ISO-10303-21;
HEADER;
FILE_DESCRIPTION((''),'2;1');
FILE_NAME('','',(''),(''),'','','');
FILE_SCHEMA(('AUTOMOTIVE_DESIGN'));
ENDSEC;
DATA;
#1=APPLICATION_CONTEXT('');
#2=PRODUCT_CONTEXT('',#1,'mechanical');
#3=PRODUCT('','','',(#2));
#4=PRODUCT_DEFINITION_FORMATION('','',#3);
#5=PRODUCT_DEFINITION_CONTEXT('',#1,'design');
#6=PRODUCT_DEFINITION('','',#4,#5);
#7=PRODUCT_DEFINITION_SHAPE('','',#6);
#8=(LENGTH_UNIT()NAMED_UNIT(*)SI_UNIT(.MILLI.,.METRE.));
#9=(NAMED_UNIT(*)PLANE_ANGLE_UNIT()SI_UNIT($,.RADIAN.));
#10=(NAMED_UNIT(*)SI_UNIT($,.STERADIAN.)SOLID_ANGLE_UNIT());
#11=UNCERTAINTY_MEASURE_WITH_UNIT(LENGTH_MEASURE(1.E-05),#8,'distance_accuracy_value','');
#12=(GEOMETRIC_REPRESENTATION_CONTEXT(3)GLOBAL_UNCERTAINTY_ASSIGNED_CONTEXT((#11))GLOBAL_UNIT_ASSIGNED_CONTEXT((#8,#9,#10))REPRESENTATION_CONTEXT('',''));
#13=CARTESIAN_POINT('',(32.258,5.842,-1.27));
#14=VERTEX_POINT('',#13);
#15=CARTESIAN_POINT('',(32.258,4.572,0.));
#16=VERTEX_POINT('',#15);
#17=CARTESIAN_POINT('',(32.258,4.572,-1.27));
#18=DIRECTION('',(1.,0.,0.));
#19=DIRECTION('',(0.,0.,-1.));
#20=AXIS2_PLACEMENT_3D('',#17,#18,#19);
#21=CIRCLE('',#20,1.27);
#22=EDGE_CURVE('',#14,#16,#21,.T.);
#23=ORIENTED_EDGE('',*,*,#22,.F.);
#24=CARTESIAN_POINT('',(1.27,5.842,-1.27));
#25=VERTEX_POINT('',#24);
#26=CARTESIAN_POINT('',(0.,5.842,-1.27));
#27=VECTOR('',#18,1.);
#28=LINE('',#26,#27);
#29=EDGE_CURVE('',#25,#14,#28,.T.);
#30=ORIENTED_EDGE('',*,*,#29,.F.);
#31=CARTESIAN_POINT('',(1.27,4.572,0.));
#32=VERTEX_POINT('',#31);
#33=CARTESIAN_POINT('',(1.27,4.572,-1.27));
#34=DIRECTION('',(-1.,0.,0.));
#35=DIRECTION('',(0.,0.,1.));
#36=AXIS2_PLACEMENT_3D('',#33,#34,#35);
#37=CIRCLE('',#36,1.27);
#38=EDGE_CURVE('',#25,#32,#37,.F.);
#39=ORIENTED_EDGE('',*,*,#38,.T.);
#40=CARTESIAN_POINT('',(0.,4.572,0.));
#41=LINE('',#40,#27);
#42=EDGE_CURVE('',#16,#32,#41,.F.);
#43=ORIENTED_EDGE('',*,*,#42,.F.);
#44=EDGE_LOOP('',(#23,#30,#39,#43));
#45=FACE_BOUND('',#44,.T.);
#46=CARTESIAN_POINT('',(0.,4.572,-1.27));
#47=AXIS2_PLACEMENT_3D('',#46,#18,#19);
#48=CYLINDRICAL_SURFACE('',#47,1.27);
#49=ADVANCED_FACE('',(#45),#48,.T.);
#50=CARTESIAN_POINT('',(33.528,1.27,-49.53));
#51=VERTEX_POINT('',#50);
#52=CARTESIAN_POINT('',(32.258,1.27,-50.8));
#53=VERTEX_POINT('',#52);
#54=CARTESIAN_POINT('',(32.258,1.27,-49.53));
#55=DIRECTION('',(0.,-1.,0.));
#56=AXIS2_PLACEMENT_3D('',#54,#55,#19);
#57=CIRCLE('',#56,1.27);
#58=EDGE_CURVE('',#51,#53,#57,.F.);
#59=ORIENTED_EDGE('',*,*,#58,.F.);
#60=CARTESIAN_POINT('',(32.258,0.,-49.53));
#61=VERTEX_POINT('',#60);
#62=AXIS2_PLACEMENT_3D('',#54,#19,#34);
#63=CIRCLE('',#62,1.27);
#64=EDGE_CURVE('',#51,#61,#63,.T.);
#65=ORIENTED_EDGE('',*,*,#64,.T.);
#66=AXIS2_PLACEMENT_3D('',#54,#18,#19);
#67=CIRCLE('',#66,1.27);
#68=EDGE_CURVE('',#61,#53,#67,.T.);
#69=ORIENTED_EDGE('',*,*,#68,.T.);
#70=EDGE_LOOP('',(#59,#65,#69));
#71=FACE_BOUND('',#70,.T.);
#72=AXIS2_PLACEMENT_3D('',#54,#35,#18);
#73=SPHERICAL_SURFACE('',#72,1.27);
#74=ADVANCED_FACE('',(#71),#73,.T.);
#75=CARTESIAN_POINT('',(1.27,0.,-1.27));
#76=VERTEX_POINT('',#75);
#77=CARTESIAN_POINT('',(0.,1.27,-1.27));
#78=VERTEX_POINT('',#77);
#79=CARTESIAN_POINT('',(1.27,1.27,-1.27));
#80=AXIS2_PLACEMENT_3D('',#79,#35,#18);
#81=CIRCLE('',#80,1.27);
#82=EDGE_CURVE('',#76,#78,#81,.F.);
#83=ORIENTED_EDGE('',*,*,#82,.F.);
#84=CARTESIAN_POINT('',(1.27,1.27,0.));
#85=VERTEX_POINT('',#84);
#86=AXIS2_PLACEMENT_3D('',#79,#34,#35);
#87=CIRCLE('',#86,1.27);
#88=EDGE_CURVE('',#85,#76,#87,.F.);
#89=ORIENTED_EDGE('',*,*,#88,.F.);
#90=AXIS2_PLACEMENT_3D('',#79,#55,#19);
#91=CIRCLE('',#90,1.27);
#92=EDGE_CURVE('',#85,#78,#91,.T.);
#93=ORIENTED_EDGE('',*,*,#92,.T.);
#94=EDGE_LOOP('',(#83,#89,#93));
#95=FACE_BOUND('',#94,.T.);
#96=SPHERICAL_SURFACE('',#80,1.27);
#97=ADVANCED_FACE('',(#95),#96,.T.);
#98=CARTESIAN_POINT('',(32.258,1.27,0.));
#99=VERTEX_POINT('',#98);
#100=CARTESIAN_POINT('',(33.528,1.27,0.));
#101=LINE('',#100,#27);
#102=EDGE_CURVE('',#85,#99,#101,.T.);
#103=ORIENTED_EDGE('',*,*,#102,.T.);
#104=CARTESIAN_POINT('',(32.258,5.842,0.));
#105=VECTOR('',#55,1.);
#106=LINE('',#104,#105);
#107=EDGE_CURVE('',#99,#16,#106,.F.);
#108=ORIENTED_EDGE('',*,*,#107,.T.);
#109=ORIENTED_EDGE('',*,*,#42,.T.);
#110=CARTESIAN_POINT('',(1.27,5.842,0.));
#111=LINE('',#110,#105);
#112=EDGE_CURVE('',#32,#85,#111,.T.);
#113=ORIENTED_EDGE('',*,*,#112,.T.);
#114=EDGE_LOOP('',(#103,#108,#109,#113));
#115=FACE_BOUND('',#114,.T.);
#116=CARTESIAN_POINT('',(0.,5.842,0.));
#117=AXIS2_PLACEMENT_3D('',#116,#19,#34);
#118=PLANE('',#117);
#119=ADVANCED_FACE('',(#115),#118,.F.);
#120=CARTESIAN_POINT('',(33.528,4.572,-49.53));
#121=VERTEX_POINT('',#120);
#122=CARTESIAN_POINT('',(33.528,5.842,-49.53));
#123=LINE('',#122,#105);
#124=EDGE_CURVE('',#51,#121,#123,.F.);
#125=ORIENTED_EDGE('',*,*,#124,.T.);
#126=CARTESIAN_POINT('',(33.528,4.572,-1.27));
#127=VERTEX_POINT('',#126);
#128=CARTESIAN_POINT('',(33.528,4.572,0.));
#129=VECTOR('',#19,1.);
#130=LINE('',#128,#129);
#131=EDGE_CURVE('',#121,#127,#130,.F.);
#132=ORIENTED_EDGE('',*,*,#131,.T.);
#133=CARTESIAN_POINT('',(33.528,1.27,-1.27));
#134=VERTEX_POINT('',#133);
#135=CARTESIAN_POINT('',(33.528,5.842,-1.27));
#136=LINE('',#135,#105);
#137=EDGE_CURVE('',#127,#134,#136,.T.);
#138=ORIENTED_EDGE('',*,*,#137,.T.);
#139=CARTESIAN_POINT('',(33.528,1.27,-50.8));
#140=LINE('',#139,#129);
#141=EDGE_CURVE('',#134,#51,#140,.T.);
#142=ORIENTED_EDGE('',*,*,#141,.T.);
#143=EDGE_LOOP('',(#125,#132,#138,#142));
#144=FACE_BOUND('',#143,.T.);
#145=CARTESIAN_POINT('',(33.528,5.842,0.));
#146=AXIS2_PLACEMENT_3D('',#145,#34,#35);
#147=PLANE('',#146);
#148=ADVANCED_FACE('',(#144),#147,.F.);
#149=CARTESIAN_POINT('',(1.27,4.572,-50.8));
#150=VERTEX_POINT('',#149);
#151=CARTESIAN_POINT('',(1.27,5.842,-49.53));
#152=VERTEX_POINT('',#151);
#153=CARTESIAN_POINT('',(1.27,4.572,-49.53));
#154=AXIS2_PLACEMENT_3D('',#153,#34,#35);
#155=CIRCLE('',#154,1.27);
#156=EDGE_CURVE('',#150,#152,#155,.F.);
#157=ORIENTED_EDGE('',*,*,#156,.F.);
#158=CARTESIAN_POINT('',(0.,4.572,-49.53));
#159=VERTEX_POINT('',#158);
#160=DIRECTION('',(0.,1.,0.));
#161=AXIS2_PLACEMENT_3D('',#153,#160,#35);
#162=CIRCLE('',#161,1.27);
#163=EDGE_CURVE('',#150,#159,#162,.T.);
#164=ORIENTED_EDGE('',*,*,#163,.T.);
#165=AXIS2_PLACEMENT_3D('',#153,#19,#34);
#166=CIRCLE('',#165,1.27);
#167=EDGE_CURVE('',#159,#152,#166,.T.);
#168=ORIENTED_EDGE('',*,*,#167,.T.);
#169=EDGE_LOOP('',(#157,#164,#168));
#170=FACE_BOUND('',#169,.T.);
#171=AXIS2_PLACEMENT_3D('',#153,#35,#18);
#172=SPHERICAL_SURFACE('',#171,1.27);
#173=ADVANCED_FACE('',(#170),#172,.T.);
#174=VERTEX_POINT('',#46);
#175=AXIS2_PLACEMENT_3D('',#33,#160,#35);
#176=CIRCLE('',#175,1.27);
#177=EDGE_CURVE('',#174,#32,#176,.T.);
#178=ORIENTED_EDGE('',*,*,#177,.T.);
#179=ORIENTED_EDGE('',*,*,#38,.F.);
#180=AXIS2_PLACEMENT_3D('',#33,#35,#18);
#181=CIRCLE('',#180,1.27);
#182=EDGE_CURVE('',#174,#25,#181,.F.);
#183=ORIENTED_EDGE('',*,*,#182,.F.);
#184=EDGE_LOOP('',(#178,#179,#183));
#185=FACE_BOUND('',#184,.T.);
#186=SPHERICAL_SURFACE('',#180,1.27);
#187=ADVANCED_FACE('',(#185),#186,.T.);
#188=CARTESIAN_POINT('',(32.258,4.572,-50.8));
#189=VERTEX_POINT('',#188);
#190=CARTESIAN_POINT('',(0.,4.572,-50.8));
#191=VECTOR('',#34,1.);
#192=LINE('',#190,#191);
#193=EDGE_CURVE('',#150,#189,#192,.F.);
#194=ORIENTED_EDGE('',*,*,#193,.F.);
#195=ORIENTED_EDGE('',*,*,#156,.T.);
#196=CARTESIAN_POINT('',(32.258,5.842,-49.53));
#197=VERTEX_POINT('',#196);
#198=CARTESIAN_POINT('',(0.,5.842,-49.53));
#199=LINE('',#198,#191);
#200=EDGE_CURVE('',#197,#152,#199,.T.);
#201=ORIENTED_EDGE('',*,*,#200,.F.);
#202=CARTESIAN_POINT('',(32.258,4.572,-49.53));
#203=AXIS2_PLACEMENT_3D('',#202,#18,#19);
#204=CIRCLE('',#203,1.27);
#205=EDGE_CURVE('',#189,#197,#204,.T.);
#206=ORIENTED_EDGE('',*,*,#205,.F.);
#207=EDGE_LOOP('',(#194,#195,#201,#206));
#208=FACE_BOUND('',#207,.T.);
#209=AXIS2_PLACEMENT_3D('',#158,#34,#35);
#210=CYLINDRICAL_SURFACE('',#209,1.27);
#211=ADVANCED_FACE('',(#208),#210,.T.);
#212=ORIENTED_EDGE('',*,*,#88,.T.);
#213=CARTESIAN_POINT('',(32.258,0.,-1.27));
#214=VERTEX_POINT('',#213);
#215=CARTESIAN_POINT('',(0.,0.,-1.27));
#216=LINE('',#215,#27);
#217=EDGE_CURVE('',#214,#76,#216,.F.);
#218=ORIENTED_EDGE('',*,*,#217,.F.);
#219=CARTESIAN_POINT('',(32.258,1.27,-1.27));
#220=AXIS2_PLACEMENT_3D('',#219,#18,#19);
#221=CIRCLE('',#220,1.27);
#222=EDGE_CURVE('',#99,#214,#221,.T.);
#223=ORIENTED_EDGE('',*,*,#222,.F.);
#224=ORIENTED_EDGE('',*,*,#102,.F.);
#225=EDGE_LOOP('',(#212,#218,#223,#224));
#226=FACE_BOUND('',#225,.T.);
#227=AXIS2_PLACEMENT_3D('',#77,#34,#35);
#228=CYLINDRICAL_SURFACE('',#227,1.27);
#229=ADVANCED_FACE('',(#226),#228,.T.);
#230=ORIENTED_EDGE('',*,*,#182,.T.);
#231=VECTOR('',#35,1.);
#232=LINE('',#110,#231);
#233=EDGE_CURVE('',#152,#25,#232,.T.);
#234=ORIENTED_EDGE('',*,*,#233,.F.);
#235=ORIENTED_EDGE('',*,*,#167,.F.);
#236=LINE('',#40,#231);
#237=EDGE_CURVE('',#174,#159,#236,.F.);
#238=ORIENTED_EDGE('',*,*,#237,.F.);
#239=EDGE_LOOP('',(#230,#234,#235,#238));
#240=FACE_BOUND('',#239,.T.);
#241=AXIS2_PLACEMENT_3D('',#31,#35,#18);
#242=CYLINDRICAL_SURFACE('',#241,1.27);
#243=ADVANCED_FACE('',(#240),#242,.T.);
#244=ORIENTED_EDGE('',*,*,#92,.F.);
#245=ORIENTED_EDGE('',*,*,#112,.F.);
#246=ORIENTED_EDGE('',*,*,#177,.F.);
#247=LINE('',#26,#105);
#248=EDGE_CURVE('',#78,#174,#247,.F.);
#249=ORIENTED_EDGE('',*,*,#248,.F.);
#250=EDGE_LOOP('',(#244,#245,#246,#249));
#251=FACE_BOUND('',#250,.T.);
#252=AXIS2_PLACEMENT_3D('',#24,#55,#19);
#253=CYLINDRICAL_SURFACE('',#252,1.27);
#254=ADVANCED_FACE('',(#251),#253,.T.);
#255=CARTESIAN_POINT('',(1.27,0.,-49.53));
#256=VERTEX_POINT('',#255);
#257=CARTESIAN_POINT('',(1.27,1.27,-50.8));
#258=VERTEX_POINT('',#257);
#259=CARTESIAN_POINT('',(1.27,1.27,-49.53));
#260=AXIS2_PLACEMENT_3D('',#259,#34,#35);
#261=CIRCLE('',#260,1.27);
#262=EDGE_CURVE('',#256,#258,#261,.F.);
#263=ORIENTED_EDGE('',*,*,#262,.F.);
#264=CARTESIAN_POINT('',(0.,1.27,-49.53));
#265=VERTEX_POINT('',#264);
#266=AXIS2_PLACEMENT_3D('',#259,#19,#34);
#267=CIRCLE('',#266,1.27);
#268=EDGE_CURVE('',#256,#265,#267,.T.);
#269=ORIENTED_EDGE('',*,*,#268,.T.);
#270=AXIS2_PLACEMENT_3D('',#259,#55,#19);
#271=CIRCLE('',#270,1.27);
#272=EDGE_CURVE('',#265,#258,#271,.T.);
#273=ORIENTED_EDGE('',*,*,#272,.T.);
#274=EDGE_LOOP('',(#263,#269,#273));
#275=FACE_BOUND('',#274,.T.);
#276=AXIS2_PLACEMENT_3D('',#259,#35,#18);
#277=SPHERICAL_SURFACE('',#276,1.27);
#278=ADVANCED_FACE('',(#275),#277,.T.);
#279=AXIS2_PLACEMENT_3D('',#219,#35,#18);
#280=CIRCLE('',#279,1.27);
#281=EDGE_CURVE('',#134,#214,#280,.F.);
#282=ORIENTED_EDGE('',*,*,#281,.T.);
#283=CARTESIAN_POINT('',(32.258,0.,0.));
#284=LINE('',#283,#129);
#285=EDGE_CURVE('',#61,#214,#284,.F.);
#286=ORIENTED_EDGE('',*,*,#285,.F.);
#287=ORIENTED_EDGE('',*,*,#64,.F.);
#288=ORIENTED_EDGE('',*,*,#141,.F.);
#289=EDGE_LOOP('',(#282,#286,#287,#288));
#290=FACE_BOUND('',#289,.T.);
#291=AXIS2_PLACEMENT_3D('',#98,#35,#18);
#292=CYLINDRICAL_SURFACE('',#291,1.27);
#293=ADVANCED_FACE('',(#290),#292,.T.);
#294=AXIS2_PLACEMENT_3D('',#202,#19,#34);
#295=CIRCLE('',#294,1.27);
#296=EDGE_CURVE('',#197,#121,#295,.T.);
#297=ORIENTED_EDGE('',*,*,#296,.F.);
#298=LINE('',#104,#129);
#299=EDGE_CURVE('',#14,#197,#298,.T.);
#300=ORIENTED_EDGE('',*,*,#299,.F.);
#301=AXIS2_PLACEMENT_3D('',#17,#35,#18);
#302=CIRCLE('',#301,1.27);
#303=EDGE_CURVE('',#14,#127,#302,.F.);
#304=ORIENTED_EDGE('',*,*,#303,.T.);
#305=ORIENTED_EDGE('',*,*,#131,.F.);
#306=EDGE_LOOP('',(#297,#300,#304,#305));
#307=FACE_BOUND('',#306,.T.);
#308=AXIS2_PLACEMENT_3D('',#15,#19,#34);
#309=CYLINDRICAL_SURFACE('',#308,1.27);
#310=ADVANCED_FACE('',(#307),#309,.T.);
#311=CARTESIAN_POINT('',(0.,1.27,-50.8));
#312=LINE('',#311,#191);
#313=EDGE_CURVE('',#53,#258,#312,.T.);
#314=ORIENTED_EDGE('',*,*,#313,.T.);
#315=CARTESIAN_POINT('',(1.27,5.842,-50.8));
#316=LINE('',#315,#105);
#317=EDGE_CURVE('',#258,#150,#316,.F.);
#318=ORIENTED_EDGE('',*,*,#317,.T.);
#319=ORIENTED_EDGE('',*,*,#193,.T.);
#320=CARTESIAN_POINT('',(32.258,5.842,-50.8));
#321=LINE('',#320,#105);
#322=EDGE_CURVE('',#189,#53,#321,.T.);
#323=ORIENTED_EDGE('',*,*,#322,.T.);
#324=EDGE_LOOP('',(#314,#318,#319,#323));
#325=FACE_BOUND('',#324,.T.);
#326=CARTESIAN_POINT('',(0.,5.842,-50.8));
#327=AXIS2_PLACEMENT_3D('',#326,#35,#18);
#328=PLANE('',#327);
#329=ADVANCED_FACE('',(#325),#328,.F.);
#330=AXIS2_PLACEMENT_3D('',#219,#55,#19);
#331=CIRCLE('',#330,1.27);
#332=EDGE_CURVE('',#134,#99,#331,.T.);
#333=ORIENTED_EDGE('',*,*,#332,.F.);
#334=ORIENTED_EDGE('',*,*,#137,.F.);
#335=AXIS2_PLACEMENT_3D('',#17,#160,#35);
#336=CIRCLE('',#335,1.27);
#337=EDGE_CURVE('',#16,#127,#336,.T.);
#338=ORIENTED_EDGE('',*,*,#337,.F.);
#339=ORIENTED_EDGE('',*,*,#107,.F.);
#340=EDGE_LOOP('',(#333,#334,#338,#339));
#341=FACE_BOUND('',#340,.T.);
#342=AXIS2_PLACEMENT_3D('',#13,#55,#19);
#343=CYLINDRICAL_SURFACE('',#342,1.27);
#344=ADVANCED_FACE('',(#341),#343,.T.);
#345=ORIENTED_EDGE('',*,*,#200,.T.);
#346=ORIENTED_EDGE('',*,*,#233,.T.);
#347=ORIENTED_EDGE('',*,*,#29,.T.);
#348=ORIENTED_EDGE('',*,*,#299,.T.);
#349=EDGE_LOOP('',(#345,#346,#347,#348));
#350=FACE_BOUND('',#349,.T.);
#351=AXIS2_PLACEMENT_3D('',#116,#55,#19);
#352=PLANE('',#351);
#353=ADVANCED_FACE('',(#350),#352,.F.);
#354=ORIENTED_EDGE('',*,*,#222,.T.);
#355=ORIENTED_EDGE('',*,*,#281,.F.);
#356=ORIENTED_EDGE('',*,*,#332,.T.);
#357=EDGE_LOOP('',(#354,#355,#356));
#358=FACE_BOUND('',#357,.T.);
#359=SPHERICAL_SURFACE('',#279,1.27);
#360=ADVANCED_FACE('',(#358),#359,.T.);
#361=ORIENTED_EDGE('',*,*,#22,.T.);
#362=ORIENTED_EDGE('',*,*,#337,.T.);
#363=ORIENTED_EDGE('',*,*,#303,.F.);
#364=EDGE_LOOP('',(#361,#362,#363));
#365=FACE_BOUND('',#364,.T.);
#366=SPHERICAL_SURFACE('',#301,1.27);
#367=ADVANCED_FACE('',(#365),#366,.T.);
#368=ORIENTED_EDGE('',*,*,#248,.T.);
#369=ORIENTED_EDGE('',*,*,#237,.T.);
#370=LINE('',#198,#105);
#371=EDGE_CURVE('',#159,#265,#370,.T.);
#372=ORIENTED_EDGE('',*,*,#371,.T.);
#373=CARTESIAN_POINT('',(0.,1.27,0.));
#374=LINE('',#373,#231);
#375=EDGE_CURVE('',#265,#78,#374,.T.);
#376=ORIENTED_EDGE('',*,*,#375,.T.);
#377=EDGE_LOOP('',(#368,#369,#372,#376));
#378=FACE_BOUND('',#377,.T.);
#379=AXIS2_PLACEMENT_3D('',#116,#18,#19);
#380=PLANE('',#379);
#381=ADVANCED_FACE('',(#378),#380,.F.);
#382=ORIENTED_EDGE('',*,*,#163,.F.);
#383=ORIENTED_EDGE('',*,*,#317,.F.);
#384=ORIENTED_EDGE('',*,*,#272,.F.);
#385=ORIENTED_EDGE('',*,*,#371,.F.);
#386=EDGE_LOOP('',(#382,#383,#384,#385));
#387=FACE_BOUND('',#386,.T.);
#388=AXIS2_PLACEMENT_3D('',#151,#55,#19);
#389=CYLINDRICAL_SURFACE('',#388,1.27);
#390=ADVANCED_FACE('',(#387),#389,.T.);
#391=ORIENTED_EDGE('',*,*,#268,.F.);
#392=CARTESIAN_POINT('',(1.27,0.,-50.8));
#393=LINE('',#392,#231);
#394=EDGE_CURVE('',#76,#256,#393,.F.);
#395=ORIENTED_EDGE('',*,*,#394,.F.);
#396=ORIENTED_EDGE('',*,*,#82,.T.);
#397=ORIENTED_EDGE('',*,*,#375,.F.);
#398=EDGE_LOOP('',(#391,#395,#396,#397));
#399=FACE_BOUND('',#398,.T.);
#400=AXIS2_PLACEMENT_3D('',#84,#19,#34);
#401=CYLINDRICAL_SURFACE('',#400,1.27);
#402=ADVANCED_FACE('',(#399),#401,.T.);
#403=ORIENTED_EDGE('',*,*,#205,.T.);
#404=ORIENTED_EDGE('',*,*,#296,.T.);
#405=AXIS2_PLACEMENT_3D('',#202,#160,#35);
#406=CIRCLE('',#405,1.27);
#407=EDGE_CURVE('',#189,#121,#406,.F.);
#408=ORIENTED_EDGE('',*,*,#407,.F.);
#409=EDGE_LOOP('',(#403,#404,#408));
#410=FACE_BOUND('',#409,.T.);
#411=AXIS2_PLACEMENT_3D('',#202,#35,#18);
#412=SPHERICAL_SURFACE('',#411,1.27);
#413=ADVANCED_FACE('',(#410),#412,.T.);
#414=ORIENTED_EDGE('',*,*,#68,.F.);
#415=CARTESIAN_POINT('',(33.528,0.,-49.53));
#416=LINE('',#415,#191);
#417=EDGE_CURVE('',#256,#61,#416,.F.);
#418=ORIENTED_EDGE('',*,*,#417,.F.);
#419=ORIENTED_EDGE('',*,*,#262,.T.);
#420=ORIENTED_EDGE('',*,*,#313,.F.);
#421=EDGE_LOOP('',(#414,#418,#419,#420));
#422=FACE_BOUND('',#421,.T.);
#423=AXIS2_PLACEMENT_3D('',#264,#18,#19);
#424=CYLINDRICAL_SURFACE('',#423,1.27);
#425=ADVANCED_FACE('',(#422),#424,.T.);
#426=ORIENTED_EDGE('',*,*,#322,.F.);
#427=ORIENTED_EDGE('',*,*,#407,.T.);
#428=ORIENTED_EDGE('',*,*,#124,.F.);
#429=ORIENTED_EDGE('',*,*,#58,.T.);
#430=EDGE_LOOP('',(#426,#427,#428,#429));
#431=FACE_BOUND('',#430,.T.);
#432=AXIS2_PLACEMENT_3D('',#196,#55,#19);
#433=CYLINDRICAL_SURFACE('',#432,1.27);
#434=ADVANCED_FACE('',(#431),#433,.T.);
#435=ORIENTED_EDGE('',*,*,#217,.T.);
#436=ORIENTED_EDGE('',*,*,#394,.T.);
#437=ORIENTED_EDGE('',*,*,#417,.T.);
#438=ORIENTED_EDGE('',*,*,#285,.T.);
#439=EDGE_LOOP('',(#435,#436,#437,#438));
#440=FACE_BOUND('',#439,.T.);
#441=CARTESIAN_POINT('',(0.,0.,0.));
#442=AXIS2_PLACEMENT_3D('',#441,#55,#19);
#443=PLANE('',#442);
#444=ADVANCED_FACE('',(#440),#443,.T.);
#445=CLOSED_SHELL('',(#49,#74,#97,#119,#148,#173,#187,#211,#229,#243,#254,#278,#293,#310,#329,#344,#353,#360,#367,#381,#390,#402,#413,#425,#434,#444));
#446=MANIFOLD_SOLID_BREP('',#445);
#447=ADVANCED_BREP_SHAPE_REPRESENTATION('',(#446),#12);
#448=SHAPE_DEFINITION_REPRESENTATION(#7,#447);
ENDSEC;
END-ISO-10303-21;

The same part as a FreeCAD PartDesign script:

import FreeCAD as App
import Part
import Sketcher

V = App.Vector
Q = App.Units.Quantity


def add_polygon(sketch, points):
    """Adds a closed chain of lines whose ends are joined by coincident constraints."""
    first, n = sketch.GeometryCount, len(points)
    for a, b in zip(points, points[1:] + points[:1]):
        sketch.addGeometry(Part.LineSegment(App.Vector(*a, 0), App.Vector(*b, 0)), False)
    for i in range(n):
        sketch.addConstraint(Sketcher.Constraint("Coincident", first + i, 2, first + (i + 1) % n, 1))

doc = App.newDocument("Part")
body = doc.addObject("PartDesign::Body", "Body")

# Sketch on XZ plane
sketch1 = doc.addObject("Sketcher::SketchObject", "Sketch")
body.addObject(sketch1)
sketch1.AttachmentSupport = (doc.XZ_Plane, [""])
sketch1.MapMode = "FlatFace"
add_polygon(sketch1, [(0, -50.8), (0, 0), (33.528, 0), (33.528, -50.8)])  # lines 0-3
sketch1.addConstraint([
    Sketcher.Constraint("Vertical", 0),
    Sketcher.Constraint("Horizontal", 1),
    Sketcher.Constraint("Vertical", 2),
    Sketcher.Constraint("Horizontal", 3),
    Sketcher.Constraint("Coincident", 0, 2, -1, 1),
    Sketcher.Constraint("DistanceY", 0, 1, 0, 2, Q("2 in")),
    Sketcher.Constraint("DistanceX", 1, 1, 1, 2, Q("1.32 in")),
])
pad1 = doc.addObject("PartDesign::Pad", "Pad")
body.addObject(pad1)
pad1.Profile = sketch1
pad1.Length = Q("0.23 in")
pad1.Reversed = True
doc.recompute()

fillet = doc.addObject("PartDesign::Fillet", "Fillet")
body.addObject(fillet)
fillet.Base = (pad1, ["Edge1"])
fillet.UseAllEdges = True
fillet.Radius = Q("0.05 in")

doc.recompute()
